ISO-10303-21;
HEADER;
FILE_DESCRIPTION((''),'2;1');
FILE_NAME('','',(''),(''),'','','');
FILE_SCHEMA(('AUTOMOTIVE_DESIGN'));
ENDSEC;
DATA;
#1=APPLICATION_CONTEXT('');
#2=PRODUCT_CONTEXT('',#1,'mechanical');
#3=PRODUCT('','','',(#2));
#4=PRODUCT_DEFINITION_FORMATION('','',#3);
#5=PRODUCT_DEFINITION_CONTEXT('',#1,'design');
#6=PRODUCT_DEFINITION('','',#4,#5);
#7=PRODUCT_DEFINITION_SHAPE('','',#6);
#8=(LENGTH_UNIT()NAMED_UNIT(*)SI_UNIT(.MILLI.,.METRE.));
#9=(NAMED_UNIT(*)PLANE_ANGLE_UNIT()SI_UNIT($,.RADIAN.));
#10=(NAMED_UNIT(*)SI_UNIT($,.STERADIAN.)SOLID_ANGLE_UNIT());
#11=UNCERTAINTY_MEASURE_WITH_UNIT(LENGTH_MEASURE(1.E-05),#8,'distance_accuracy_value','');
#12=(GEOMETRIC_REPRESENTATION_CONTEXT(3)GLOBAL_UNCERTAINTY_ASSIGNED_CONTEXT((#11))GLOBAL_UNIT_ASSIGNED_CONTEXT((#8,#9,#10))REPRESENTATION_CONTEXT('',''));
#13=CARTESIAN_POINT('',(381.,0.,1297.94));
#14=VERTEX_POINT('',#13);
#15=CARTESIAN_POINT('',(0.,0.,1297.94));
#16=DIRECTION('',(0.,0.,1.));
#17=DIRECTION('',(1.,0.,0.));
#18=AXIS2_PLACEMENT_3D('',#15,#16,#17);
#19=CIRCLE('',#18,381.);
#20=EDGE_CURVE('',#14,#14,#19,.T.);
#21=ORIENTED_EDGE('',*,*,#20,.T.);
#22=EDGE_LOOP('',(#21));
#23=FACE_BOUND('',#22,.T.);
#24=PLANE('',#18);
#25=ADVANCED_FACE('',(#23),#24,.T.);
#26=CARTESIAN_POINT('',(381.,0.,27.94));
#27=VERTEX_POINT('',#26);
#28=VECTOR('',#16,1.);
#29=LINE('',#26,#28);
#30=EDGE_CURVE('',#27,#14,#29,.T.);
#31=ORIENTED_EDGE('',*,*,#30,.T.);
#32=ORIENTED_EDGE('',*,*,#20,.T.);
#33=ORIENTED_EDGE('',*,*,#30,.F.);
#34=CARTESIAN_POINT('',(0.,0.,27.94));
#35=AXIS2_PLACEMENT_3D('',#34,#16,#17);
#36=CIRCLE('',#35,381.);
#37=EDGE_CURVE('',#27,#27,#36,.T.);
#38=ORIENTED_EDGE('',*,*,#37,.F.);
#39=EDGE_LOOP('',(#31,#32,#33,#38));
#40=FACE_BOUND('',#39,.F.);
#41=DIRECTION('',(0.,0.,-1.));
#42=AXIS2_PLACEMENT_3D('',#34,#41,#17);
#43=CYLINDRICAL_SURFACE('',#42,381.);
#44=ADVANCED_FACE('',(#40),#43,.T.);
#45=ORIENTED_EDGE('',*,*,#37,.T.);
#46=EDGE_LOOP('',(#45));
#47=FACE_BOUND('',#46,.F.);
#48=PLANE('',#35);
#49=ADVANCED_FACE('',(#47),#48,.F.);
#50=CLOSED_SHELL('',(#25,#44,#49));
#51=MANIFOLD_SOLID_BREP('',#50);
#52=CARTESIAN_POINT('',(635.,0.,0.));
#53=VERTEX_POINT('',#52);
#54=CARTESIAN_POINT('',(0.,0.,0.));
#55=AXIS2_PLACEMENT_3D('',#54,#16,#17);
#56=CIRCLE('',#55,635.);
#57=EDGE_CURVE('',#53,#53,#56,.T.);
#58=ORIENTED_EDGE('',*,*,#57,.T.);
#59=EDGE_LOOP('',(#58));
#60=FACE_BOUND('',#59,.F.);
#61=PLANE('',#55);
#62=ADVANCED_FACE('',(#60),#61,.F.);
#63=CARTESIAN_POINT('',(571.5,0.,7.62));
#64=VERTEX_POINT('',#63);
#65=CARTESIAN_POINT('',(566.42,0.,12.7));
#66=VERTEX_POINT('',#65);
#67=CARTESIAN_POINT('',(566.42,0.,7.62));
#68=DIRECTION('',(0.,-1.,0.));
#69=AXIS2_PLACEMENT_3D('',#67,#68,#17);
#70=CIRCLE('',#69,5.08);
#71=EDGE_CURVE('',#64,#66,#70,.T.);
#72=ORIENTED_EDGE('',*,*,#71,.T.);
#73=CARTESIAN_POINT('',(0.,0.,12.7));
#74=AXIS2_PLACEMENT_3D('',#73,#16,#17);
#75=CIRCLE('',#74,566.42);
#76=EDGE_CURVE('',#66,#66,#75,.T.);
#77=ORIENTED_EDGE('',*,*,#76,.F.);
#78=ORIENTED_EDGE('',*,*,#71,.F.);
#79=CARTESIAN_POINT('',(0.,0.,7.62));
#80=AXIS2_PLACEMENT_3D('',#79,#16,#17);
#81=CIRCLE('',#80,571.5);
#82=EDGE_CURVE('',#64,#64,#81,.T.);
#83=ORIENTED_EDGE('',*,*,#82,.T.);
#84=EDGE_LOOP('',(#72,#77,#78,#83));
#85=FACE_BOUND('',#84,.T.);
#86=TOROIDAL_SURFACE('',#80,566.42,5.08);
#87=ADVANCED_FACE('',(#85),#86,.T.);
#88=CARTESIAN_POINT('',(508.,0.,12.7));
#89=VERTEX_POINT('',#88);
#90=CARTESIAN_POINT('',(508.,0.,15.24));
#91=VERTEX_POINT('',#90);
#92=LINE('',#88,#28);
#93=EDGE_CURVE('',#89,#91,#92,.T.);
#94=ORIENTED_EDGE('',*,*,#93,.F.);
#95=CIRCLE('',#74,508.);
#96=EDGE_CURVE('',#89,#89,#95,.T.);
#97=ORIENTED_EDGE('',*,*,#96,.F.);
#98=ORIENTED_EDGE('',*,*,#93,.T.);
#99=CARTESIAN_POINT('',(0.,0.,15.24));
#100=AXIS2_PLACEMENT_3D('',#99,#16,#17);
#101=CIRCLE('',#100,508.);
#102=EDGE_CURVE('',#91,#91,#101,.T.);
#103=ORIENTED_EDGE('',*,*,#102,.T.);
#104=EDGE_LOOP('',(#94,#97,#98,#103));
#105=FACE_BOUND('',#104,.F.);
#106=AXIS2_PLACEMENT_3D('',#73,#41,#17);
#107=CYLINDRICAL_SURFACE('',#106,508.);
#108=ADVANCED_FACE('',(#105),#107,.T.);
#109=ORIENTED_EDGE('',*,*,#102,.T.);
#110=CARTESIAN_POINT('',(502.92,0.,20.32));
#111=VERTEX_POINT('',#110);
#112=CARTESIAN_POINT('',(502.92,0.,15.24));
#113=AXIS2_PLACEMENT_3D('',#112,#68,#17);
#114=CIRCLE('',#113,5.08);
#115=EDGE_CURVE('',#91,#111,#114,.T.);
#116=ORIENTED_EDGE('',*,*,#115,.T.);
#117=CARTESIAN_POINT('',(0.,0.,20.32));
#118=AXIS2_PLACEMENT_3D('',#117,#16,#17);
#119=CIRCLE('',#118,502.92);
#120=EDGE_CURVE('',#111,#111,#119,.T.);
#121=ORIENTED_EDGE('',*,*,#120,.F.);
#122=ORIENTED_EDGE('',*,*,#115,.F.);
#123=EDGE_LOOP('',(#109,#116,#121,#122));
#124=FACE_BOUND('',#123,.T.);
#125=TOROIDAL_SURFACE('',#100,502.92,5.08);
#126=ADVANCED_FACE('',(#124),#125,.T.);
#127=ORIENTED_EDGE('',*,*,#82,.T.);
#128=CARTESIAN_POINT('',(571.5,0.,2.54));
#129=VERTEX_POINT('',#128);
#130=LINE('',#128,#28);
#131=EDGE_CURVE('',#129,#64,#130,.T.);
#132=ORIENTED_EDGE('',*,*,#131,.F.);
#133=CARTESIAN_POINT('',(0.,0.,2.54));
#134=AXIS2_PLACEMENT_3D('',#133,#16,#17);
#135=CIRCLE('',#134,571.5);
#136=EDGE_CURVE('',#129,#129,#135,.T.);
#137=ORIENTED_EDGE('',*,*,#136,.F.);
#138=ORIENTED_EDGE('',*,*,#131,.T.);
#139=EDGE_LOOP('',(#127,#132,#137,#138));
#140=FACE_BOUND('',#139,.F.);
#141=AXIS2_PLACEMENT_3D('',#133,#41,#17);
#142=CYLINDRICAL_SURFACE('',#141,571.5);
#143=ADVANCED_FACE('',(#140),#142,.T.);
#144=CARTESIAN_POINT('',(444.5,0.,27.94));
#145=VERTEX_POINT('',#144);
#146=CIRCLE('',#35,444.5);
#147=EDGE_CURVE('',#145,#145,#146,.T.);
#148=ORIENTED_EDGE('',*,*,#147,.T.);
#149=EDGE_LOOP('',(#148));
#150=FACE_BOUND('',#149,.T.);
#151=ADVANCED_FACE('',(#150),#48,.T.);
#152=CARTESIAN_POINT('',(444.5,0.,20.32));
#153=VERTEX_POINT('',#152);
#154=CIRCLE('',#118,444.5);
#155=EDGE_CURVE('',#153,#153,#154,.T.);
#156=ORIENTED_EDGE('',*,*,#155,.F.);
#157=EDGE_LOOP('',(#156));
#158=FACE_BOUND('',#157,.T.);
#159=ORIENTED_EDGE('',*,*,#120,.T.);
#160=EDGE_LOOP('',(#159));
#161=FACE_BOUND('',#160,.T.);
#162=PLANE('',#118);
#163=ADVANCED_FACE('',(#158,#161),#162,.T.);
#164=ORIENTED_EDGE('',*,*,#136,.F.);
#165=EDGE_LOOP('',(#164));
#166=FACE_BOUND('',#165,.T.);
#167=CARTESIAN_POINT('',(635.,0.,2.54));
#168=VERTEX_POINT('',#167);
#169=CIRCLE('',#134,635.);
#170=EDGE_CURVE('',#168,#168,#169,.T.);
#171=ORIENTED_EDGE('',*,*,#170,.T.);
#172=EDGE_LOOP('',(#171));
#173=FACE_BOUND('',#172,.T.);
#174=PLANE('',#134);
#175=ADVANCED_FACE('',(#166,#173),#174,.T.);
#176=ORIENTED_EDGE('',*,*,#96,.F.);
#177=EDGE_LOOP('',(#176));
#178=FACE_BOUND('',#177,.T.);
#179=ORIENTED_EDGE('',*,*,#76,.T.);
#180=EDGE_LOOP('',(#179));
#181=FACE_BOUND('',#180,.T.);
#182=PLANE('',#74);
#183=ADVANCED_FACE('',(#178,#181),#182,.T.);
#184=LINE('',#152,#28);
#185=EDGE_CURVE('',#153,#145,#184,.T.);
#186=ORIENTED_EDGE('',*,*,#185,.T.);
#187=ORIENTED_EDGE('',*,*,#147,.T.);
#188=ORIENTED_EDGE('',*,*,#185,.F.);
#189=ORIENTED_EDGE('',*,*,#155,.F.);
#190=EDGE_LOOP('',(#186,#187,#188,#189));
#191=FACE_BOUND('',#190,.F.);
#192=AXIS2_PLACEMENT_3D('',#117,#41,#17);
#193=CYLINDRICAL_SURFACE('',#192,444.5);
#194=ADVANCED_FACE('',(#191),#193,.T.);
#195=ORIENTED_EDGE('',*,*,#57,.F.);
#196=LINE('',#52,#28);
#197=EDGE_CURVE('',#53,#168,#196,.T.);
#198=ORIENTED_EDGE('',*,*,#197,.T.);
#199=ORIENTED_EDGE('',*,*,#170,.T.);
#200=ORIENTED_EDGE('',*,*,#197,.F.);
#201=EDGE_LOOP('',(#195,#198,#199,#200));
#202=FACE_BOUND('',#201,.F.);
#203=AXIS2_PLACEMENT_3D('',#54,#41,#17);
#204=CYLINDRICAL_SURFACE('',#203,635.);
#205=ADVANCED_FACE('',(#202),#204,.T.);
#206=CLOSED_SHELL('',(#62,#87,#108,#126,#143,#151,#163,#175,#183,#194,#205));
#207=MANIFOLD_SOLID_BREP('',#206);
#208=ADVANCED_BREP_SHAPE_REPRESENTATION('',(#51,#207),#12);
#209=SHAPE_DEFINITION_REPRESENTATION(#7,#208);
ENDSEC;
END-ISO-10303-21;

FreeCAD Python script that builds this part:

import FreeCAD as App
import Part
import Sketcher
Q = App.Units.Quantity


def edges_at(feature, points):
    """Names of the edges that pass closest to the given points."""
    edges = feature.Shape.Edges
    near = lambda p: min(range(len(edges)), key=lambda i: edges[i].distToShape(Part.Vertex(*p))[0])
    return sorted({f"Edge{near(p) + 1}" for p in points})

doc = App.newDocument("Part")
body = doc.addObject("PartDesign::Body", "Body")

# Sketch on XY plane
sketch1 = body.newObject("Sketcher::SketchObject", "Sketch")
sketch1.AttachmentSupport = (doc.getObject("XY_Plane"), [""])
sketch1.MapMode = "FlatFace"
sketch1.addGeometry(Part.Circle(App.Vector(0, 0, 0), App.Vector(0, 0, 1), 635), False)
sketch1.addConstraint(Sketcher.Constraint("Coincident", 0, 3, -1, 1))
sketch1.addConstraint(Sketcher.Constraint("Diameter", 0, Q("50 in")))
pad1 = body.newObject("PartDesign::Pad", "Pad")
pad1.Profile = sketch1
pad1.Length = Q("0.1 in")

# Sketch on XY plane
sketch2 = body.newObject("Sketcher::SketchObject", "Sketch001")
sketch2.AttachmentSupport = (doc.getObject("XY_Plane"), [""])
sketch2.MapMode = "FlatFace"
sketch2.AttachmentOffset = App.Placement(App.Vector(0, 0, 0.1 * 25.4), App.Rotation())
sketch2.addGeometry(Part.Circle(App.Vector(0, 0, 0), App.Vector(0, 0, 1), 571.5), False)
sketch2.addConstraint(Sketcher.Constraint("Coincident", 0, 3, -1, 1))
sketch2.addConstraint(Sketcher.Constraint("Diameter", 0, Q("45 in")))
pad2 = body.newObject("PartDesign::Pad", "Pad001")
pad2.Profile = sketch2
pad2.Length = Q("0.4 in")
doc.recompute()

fillet = body.newObject("PartDesign::Fillet", "Fillet")
fillet.Base = (pad2, edges_at(pad2, [(-571.5, 0, 12.7)]))
fillet.Radius = Q("0.2 in")

# Sketch on XY plane
sketch3 = body.newObject("Sketcher::SketchObject", "Sketch002")
sketch3.AttachmentSupport = (doc.getObject("XY_Plane"), [""])
sketch3.MapMode = "FlatFace"
sketch3.AttachmentOffset = App.Placement(App.Vector(0, 0, 0.5 * 25.4), App.Rotation())
sketch3.addGeometry(Part.Circle(App.Vector(0, 0, 0), App.Vector(0, 0, 1), 508), False)
sketch3.addConstraint(Sketcher.Constraint("Coincident", 0, 3, -1, 1))
sketch3.addConstraint(Sketcher.Constraint("Diameter", 0, Q("40 in")))
pad3 = body.newObject("PartDesign::Pad", "Pad002")
pad3.Profile = sketch3
pad3.Length = Q("0.3 in")
doc.recompute()

fillet2 = body.newObject("PartDesign::Fillet", "Fillet001")
fillet2.Base = (pad3, edges_at(pad3, [(-508, 0, 20.32)]))
fillet2.Radius = Q("0.2 in")

# Sketch on XY plane
sketch4 = body.newObject("Sketcher::SketchObject", "Sketch003")
sketch4.AttachmentSupport = (doc.getObject("XY_Plane"), [""])
sketch4.MapMode = "FlatFace"
sketch4.AttachmentOffset = App.Placement(App.Vector(0, 0, 0.8 * 25.4), App.Rotation())
sketch4.addGeometry(Part.Circle(App.Vector(0, 0, 0), App.Vector(0, 0, 1), 444.5), False)
sketch4.addConstraint(Sketcher.Constraint("Coincident", 0, 3, -1, 1))
sketch4.addConstraint(Sketcher.Constraint("Diameter", 0, Q("35 in")))
pad4 = body.newObject("PartDesign::Pad", "Pad003")
pad4.Profile = sketch4
pad4.Length = Q("0.3 in")
body2 = doc.addObject("PartDesign::Body", "Body001")

# Sketch on XY plane
sketch5 = body2.newObject("Sketcher::SketchObject", "Sketch004")
sketch5.AttachmentSupport = (doc.getObject("XY_Plane001"), [""])
sketch5.MapMode = "FlatFace"
sketch5.AttachmentOffset = App.Placement(App.Vector(0, 0, 1.1 * 25.4), App.Rotation())
sketch5.addGeometry(Part.Circle(App.Vector(0, 0, 0), App.Vector(0, 0, 1), 381), False)
sketch5.addConstraint(Sketcher.Constraint("Coincident", 0, 3, -1, 1))
sketch5.addConstraint(Sketcher.Constraint("Diameter", 0, Q("30 in")))
pad5 = body2.newObject("PartDesign::Pad", "Pad004")
pad5.Profile = sketch5
pad5.Length = Q("50 in")

doc.recompute()
